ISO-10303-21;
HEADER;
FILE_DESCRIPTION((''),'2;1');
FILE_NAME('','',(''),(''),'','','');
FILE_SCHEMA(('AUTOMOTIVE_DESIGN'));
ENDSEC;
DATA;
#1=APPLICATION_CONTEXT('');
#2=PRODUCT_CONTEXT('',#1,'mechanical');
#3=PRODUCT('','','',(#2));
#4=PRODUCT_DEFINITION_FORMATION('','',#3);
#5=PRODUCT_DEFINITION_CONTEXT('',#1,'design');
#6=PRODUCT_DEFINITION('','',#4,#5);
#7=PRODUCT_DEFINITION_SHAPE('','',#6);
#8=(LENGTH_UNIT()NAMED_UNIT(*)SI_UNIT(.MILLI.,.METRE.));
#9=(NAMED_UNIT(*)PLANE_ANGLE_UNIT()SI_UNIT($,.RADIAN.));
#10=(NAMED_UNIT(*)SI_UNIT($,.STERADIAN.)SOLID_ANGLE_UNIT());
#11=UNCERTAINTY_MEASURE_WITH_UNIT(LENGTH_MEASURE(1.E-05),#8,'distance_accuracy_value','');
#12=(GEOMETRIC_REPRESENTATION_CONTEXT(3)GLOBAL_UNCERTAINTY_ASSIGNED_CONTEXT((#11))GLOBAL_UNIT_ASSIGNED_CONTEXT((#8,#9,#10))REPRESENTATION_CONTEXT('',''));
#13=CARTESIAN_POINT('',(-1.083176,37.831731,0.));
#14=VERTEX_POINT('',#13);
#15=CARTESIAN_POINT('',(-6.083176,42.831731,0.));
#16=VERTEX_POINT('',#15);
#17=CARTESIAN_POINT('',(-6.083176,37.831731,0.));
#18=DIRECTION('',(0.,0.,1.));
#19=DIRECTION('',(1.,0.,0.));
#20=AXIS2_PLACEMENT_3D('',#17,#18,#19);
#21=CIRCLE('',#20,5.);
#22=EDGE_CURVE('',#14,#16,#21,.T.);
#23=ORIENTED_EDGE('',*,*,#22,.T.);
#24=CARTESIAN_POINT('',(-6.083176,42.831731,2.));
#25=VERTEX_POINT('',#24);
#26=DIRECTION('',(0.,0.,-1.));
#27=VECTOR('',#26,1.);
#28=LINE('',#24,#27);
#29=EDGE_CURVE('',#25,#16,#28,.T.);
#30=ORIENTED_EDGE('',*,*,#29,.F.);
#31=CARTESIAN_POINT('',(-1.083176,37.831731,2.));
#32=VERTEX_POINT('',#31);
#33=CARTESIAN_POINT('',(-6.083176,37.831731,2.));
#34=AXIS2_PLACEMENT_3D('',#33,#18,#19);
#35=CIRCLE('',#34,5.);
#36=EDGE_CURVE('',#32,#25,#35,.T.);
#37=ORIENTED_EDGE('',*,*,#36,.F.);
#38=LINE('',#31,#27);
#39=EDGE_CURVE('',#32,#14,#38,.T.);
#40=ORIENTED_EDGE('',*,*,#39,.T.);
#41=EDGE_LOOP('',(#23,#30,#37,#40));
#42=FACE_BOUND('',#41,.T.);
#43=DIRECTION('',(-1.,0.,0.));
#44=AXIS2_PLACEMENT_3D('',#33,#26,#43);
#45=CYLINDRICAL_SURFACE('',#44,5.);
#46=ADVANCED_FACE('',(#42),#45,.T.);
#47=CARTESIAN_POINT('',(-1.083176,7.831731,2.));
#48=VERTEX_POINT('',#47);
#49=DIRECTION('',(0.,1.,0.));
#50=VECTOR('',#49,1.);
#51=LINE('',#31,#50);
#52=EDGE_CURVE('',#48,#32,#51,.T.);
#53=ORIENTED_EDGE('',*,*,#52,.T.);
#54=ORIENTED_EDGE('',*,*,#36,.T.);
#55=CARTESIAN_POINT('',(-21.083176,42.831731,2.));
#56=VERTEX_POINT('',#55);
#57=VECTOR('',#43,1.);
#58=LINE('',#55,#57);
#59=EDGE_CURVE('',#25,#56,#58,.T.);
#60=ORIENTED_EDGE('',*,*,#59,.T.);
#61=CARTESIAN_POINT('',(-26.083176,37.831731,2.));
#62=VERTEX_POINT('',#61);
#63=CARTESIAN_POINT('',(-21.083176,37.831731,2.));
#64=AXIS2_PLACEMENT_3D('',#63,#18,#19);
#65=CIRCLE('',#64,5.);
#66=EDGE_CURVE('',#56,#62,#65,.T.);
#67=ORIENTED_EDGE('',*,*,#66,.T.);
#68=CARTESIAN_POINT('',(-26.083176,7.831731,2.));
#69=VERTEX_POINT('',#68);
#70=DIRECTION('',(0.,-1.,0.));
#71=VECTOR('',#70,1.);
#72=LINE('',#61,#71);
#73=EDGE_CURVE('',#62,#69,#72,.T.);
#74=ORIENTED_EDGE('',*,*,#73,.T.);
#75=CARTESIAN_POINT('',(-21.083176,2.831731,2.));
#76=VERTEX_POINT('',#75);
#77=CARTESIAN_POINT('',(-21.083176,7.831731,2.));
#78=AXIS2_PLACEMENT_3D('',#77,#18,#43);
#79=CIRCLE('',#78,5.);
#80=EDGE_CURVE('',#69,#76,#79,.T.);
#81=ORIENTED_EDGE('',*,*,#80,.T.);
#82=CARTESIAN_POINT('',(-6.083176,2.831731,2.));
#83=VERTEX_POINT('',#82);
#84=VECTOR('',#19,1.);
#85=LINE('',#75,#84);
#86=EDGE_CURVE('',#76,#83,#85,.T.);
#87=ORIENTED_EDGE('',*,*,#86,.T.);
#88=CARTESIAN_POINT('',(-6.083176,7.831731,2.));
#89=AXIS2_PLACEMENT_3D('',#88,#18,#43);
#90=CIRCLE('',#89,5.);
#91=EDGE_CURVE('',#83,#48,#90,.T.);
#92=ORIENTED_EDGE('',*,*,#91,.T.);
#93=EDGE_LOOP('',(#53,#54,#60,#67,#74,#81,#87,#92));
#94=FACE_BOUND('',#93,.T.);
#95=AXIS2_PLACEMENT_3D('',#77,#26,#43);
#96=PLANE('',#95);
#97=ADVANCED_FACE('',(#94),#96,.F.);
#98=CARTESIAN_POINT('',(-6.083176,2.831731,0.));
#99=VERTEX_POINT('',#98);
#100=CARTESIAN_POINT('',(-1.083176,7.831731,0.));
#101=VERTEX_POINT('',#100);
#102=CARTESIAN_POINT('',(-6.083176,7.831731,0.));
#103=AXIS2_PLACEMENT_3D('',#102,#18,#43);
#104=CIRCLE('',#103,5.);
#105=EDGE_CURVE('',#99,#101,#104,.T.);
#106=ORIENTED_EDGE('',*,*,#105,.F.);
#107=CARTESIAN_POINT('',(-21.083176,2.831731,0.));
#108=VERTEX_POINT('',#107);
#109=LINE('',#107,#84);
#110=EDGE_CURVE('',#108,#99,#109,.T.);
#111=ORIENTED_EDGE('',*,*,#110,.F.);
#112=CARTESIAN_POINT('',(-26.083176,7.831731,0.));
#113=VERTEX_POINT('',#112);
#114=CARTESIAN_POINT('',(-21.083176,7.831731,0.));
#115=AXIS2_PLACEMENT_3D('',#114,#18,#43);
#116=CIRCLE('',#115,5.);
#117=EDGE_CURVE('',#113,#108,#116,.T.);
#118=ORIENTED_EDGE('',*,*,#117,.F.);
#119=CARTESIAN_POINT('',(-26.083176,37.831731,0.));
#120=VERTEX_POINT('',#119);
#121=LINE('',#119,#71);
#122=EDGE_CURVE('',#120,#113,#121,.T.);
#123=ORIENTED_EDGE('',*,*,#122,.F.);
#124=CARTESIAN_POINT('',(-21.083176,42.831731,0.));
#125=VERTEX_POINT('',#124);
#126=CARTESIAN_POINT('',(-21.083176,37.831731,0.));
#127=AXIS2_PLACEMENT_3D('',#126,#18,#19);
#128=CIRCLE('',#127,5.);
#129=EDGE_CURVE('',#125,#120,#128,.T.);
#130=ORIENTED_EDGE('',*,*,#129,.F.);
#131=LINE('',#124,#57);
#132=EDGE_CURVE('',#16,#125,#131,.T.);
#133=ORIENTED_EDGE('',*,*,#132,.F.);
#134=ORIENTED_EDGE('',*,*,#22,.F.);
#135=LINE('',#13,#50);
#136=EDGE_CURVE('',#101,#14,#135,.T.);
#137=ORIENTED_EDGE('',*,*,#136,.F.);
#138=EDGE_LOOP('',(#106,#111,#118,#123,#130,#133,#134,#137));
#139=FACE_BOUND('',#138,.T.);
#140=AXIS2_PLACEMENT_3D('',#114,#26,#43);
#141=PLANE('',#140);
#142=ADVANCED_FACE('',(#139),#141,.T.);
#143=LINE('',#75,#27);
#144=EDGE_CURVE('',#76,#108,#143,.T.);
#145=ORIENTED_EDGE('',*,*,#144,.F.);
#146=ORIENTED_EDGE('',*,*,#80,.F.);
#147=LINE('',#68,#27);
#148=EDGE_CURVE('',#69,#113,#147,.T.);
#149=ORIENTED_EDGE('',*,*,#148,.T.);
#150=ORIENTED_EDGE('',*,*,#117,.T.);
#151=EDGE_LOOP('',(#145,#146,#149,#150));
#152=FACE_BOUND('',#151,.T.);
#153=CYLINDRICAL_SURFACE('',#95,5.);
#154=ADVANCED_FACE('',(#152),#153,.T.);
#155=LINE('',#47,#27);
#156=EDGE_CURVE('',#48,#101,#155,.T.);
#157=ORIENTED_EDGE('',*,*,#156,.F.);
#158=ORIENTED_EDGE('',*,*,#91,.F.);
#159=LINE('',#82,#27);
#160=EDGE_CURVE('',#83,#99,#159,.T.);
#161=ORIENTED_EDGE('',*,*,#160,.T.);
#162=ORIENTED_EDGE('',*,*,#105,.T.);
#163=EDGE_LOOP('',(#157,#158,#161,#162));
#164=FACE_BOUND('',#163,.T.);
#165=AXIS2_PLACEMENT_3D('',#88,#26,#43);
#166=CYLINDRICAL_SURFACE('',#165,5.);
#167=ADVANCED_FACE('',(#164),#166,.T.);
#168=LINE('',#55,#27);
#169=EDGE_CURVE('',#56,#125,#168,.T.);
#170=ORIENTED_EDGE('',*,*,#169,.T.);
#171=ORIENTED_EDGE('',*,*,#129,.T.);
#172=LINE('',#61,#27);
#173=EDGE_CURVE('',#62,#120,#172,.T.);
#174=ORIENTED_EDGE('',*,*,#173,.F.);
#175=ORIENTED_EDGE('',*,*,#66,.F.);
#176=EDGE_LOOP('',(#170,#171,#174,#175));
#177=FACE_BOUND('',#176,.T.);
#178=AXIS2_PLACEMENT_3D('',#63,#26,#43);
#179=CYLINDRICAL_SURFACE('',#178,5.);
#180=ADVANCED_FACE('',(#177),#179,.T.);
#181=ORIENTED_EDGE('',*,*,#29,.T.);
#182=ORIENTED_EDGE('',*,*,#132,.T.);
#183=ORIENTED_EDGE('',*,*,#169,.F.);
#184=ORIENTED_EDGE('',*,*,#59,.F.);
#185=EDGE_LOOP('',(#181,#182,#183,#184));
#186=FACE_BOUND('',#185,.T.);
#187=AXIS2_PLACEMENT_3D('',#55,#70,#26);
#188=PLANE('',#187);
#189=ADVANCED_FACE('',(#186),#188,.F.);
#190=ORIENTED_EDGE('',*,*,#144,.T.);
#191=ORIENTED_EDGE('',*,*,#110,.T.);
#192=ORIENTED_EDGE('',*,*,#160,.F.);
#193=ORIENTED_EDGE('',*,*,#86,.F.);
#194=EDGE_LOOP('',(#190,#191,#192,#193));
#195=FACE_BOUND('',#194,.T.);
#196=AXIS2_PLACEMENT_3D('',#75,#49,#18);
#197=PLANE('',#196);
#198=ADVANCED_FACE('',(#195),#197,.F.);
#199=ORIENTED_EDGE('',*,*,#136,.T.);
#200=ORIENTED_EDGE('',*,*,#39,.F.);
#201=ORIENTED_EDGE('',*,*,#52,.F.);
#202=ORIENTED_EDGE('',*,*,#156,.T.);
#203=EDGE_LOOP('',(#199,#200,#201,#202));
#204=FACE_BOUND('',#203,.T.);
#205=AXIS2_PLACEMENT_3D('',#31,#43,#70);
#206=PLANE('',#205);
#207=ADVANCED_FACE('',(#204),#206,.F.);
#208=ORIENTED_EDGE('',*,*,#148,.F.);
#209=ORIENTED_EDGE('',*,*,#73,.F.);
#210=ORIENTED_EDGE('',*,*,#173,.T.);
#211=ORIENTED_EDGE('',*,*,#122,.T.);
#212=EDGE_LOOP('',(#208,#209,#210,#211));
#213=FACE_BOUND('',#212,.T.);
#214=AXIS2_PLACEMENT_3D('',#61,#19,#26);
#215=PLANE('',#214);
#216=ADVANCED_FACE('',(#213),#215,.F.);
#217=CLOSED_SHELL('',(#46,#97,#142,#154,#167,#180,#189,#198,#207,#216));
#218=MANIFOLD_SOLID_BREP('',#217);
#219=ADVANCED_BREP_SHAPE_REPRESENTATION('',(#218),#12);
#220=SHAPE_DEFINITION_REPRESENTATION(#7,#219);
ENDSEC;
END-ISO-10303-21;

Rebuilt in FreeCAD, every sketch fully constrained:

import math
import FreeCAD as App
import Part
import Sketcher
from FreeCAD import Vector
Q = App.Units.Quantity

doc = App.newDocument("Part")
body = doc.addObject("PartDesign::Body", "Body")

# Sketch on XY plane
sketch1 = doc.addObject("Sketcher::SketchObject", "Sketch")
body.addObject(sketch1)
sketch1.AttachmentSupport = (doc.XY_Plane, [""])
sketch1.MapMode = "FlatFace"
sketch1.addGeometry([
    Part.LineSegment(Vector(-6, 43, 0), Vector(-21, 43, 0)),  # 0
    Part.ArcOfCircle(Part.Circle(Vector(-21, 38, 0), Vector(0, 0, 1), 5), math.radians(90), math.radians(180)),  # 1
    Part.LineSegment(Vector(-26, 38, 0), Vector(-26, 8, 0)),  # 2
    Part.ArcOfCircle(Part.Circle(Vector(-21, 8, 0), Vector(0, 0, 1), 5), math.radians(180), math.radians(270)),  # 3
    Part.LineSegment(Vector(-21, 3, 0), Vector(-6, 3, 0)),  # 4
    Part.ArcOfCircle(Part.Circle(Vector(-6, 8, 0), Vector(0, 0, 1), 5), math.radians(-90), math.radians(0)),  # 5
    Part.LineSegment(Vector(-1, 8, 0), Vector(-1, 38, 0)),  # 6
    Part.ArcOfCircle(Part.Circle(Vector(-6, 38, 0), Vector(0, 0, 1), 5), math.radians(0), math.radians(90)),  # 7
], False)
sketch1.addConstraint([
    Sketcher.Constraint("Tangent", 0, 2, 1, 1),
    Sketcher.Constraint("Tangent", 1, 2, 2, 1),
    Sketcher.Constraint("Tangent", 2, 2, 3, 1),
    Sketcher.Constraint("Tangent", 3, 2, 4, 1),
    Sketcher.Constraint("Tangent", 4, 2, 5, 1),
    Sketcher.Constraint("Tangent", 5, 2, 6, 1),
    Sketcher.Constraint("Tangent", 6, 2, 7, 1),
    Sketcher.Constraint("Tangent", 7, 2, 0, 1),
    Sketcher.Constraint("Horizontal", 0),
    Sketcher.Constraint("Vertical", 2),
    Sketcher.Constraint("Horizontal", 4),
    Sketcher.Constraint("Vertical", 6),
    Sketcher.Constraint("Equal", 1, 3),
    Sketcher.Constraint("Equal", 3, 5),
    Sketcher.Constraint("Equal", 5, 7),
    Sketcher.Constraint("Radius", 1, Q("5 mm")),
    Sketcher.Constraint("DistanceX", 0, 2, 0, 1, Q("15 mm")),
    Sketcher.Constraint("DistanceY", 2, 2, 2, 1, Q("30 mm")),
    Sketcher.Constraint("DistanceY", -1, 1, 1, 3, Q("37.831731 mm")),
    Sketcher.Constraint("DistanceX", 1, 3, -1, 1, Q("21.083176 mm")),
])
pad1 = doc.addObject("PartDesign::Pad", "Pad")
body.addObject(pad1)
pad1.Profile = sketch1
pad1.Length = 2

doc.recompute()
